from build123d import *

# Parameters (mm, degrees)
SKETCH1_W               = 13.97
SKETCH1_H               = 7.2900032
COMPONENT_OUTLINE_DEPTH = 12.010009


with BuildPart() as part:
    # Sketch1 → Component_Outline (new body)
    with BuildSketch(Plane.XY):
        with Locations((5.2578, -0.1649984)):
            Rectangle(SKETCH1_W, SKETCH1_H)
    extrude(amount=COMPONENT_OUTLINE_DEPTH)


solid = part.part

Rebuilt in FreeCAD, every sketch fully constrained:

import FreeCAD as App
import Part
import Sketcher
from FreeCAD import Vector
Q = App.Units.Quantity

doc = App.newDocument("Part")
body = doc.addObject("PartDesign::Body", "Body")

sketch1 = doc.addObject("Sketcher::SketchObject", "Sketch")
body.addObject(sketch1)
sketch1.AttachmentSupport = (doc.XY_Plane, [""])
sketch1.MapMode = "FlatFace"
sketch1.addGeometry([
    Part.LineSegment(Vector(-2, 3, 0), Vector(-2, -4, 0)),
    Part.LineSegment(Vector(-2, -4, 0), Vector(12, -4, 0)),
    Part.LineSegment(Vector(12, -4, 0), Vector(12, 3, 0)),
    Part.LineSegment(Vector(12, 3, 0), Vector(-2, 3, 0)),
], False)
sketch1.addConstraint([
    Sketcher.Constraint("Coincident", 0, 2, 1, 1),
    Sketcher.Constraint("Coincident", 1, 2, 2, 1),
    Sketcher.Constraint("Coincident", 2, 2, 3, 1),
    Sketcher.Constraint("Coincident", 3, 2, 0, 1),
    Sketcher.Constraint("Vertical", 0),
    Sketcher.Constraint("Horizontal", 1),
    Sketcher.Constraint("Vertical", 2),
    Sketcher.Constraint("Horizontal", 3),
    Sketcher.Constraint("DistanceX", 1, 1, 1, 2, Q("0.55 in")),
    Sketcher.Constraint("DistanceY", 0, 2, -1, 1, Q("0.15 in")),
    Sketcher.Constraint("DistanceX", 0, 2, -1, 1, Q("0.068 in")),
    Sketcher.Constraint("DistanceY", 0, 2, 0, 1, Q("7.290003 mm")),
])
pad1 = doc.addObject("PartDesign::Pad", "Pad")
body.addObject(pad1)
pad1.Profile = sketch1
pad1.Length = 12.010009

doc.recompute()
